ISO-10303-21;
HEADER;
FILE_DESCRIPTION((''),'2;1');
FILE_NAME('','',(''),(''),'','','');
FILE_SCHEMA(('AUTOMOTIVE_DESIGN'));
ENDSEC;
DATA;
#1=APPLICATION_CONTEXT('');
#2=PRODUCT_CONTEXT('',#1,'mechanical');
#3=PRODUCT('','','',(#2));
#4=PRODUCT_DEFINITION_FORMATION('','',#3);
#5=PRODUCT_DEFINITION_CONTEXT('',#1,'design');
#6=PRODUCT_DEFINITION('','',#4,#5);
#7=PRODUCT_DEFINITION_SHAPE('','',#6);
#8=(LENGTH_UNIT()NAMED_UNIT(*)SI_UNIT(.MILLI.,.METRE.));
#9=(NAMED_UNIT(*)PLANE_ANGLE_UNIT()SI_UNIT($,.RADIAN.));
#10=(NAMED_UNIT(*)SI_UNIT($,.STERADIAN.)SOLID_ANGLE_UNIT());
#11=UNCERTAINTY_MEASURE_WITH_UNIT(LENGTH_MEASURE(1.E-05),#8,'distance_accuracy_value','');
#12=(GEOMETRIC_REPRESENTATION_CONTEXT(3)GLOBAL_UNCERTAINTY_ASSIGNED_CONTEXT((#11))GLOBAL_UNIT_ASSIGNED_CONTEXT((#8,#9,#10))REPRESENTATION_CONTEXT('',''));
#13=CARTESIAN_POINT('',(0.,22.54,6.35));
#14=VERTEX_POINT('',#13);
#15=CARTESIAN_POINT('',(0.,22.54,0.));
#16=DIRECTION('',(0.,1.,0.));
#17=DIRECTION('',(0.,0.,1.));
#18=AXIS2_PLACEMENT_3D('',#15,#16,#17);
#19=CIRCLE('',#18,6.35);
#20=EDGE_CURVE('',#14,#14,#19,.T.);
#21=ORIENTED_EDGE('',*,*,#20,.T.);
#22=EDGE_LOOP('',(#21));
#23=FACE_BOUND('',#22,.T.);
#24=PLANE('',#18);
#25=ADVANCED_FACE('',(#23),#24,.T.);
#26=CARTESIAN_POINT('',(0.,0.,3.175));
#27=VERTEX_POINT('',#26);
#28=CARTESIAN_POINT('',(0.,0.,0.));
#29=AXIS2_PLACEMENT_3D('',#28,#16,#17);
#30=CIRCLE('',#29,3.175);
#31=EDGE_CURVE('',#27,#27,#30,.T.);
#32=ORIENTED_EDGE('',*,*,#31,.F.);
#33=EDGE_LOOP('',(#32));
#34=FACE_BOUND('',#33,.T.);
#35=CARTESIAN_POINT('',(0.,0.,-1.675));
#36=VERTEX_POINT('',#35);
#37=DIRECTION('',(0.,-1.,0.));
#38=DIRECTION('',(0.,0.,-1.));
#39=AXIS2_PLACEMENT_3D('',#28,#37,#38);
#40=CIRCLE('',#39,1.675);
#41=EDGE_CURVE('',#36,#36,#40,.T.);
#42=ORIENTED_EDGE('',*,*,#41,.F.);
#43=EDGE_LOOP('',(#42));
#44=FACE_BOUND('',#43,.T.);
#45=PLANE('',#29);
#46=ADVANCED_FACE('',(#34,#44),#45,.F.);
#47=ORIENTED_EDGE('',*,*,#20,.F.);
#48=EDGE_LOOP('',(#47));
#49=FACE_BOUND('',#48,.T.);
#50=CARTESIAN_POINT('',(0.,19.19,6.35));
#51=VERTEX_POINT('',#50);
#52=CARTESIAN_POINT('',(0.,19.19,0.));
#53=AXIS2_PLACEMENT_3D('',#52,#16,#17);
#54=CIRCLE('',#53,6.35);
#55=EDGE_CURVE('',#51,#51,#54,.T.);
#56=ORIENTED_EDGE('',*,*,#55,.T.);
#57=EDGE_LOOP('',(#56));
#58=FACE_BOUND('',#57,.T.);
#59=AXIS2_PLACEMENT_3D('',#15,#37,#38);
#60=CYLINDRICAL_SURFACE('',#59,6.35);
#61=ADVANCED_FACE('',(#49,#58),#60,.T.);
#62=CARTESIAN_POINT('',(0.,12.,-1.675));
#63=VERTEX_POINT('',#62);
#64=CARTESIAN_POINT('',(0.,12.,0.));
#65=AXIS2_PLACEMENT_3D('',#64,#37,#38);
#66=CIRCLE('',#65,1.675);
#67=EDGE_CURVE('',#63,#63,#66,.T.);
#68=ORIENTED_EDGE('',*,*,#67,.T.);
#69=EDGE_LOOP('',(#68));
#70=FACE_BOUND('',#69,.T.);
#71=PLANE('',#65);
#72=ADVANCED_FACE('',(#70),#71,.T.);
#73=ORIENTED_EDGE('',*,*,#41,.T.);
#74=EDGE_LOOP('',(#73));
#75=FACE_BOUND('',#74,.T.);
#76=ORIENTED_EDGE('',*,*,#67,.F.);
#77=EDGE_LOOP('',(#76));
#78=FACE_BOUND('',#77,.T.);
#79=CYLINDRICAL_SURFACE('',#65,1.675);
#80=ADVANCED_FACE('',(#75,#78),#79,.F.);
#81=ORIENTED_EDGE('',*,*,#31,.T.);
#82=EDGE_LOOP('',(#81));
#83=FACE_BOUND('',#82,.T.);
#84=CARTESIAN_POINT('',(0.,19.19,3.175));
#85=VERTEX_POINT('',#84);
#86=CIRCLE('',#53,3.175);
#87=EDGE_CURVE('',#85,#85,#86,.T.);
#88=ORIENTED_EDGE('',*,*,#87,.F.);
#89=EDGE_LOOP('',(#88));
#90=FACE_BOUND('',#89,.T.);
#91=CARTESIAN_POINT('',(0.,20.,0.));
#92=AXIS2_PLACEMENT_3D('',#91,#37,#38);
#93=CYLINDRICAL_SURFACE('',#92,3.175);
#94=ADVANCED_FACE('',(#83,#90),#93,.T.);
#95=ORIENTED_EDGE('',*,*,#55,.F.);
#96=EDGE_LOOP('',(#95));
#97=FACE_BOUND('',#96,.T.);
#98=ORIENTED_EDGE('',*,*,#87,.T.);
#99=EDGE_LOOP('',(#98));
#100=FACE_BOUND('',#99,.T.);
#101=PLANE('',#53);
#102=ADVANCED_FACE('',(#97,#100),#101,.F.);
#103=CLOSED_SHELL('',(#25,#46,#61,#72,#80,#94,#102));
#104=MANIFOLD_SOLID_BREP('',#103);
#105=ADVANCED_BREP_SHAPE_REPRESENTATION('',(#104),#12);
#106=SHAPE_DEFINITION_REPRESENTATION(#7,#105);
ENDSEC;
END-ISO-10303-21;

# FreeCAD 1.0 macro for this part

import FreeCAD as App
import Part
import Sketcher
from FreeCAD import Vector
Q = App.Units.Quantity

doc = App.newDocument("Part")
params = doc.addObject("Spreadsheet::Sheet", "Params")
for row, (alias, value) in enumerate([
    ("sketch1_diameter", "0.25 in"),
    ("pad1_length", "20 mm"),
    ("pocket1_length", "12 mm"),
    ("sketch3_diameter", "0.5 in"),
    ("pad2_length", "0.1 in"),
    ("sketch4_diameter", "0.5 in"),
    ("pad3_length", "3.35 mm"),
], start=1):
    params.set(f"A{row}", alias)
    params.set(f"B{row}", "=" + value)
    params.setAlias(f"B{row}", alias)

body = doc.addObject("PartDesign::Body", "Body")

# Sketch on XZ plane
sketch1 = doc.addObject("Sketcher::SketchObject", "Sketch")
body.addObject(sketch1)
sketch1.AttachmentSupport = (doc.XZ_Plane, [""])
sketch1.MapMode = "FlatFace"
sketch1.addGeometry(Part.Circle(Vector(0, 0, 0), Vector(0, 0, 1), 3.2), False)
sketch1.addConstraint([
    Sketcher.Constraint("Coincident", 0, 3, -1, 1),
    Sketcher.Constraint("Diameter", 0, Q("0.25 in")),
])
sketch1.setExpression("Constraints[1]", "Params.sketch1_diameter")
pad1 = doc.addObject("PartDesign::Pad", "Pad")
body.addObject(pad1)
pad1.Profile = sketch1
pad1.setExpression("Length", "Params.pad1_length")
pad1.Reversed = True

# Sketch on XZ plane
sketch2 = doc.addObject("Sketcher::SketchObject", "Sketch001")
body.addObject(sketch2)
sketch2.AttachmentSupport = (doc.XZ_Plane, [""])
sketch2.MapMode = "FlatFace"
sketch2.addGeometry(Part.Circle(Vector(0, 0, 0), Vector(0, 0, 1), 1.7), False)
sketch2.addConstraint([
    Sketcher.Constraint("Coincident", 0, 3, -1, 1),
    Sketcher.Constraint("Diameter", 0, Q("3.35 mm")),
])
pocket1 = doc.addObject("PartDesign::Pocket", "Pocket")
body.addObject(pocket1)
pocket1.Profile = sketch2
pocket1.setExpression("Length", "Params.pocket1_length")

# Sketch on XZ plane
sketch3 = doc.addObject("Sketcher::SketchObject", "Sketch002")
body.addObject(sketch3)
sketch3.AttachmentSupport = (doc.XZ_Plane, [""])
sketch3.MapMode = "FlatFace"
sketch3.AttachmentOffset = App.Placement(Vector(0, 0, -20), App.Rotation())
sketch3.addGeometry(Part.Circle(Vector(0, 0, 0), Vector(0, 0, 1), 6), False)
sketch3.addConstraint([
    Sketcher.Constraint("Coincident", 0, 3, -1, 1),
    Sketcher.Constraint("Diameter", 0, Q("0.5 in")),
])
sketch3.setExpression("Constraints[1]", "Params.sketch3_diameter")
pad2 = doc.addObject("PartDesign::Pad", "Pad001")
body.addObject(pad2)
pad2.Profile = sketch3
pad2.setExpression("Length", "Params.pad2_length")
pad2.Reversed = True

# Sketch on XZ plane
sketch4 = doc.addObject("Sketcher::SketchObject", "Sketch003")
body.addObject(sketch4)
sketch4.AttachmentSupport = (doc.XZ_Plane, [""])
sketch4.MapMode = "FlatFace"
sketch4.AttachmentOffset = App.Placement(Vector(0, 0, -22.54), App.Rotation())
sketch4.addGeometry(Part.Circle(Vector(0, 0, 0), Vector(0, 0, 1), 6), False)
sketch4.addConstraint([
    Sketcher.Constraint("Coincident", 0, 3, -1, 1),
    Sketcher.Constraint("Diameter", 0, Q("0.5 in")),
])
sketch4.setExpression("Constraints[1]", "Params.sketch4_diameter")
pad3 = doc.addObject("PartDesign::Pad", "Pad002")
body.addObject(pad3)
pad3.Profile = sketch4
pad3.setExpression("Length", "Params.pad3_length")

doc.recompute()
